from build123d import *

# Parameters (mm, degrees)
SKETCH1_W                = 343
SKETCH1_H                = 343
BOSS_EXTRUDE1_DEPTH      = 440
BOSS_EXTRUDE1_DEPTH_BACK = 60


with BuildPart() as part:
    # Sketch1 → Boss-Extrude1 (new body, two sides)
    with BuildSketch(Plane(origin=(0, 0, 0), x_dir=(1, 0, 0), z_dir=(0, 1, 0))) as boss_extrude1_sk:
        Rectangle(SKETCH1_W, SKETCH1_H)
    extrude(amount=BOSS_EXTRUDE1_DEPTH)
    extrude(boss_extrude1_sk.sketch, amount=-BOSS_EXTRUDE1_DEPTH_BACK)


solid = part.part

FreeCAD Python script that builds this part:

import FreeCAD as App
import Part
import Sketcher

V = App.Vector


def add_polygon(sketch, points):
    """Adds a closed chain of lines whose ends are joined by coincident constraints."""
    first, n = sketch.GeometryCount, len(points)
    for a, b in zip(points, points[1:] + points[:1]):
        sketch.addGeometry(Part.LineSegment(App.Vector(*a, 0), App.Vector(*b, 0)), False)
    for i in range(n):
        sketch.addConstraint(Sketcher.Constraint("Coincident", first + i, 2, first + (i + 1) % n, 1))

doc = App.newDocument("Part")
body = doc.addObject("PartDesign::Body", "Body")

# Sketch on XZ plane
sketch1 = body.newObject("Sketcher::SketchObject", "Sketch")
sketch1.AttachmentSupport = (doc.getObject("XZ_Plane"), [""])
sketch1.MapMode = "FlatFace"
add_polygon(sketch1, [(-171.5, -171.5), (-171.5, 171.5), (171.5, 171.5), (171.5, -171.5)])  # lines 0-3
sketch1.addConstraint([
    Sketcher.Constraint("Vertical", 0),
    Sketcher.Constraint("Horizontal", 1),
    Sketcher.Constraint("Vertical", 2),
    Sketcher.Constraint("Horizontal", 3),
    Sketcher.Constraint("Symmetric", 0, 2, 2, 2, -1, 1),
    Sketcher.Constraint("Equal", 3, 0),
    Sketcher.Constraint("DistanceX", 1, 1, 1, 2, 343.0),
])
pad1 = body.newObject("PartDesign::Pad", "Pad")
pad1.Profile = sketch1
pad1.Type = "TwoLengths"
pad1.Length = 440
pad1.Length2 = 60
pad1.Reversed = True

doc.recompute()
